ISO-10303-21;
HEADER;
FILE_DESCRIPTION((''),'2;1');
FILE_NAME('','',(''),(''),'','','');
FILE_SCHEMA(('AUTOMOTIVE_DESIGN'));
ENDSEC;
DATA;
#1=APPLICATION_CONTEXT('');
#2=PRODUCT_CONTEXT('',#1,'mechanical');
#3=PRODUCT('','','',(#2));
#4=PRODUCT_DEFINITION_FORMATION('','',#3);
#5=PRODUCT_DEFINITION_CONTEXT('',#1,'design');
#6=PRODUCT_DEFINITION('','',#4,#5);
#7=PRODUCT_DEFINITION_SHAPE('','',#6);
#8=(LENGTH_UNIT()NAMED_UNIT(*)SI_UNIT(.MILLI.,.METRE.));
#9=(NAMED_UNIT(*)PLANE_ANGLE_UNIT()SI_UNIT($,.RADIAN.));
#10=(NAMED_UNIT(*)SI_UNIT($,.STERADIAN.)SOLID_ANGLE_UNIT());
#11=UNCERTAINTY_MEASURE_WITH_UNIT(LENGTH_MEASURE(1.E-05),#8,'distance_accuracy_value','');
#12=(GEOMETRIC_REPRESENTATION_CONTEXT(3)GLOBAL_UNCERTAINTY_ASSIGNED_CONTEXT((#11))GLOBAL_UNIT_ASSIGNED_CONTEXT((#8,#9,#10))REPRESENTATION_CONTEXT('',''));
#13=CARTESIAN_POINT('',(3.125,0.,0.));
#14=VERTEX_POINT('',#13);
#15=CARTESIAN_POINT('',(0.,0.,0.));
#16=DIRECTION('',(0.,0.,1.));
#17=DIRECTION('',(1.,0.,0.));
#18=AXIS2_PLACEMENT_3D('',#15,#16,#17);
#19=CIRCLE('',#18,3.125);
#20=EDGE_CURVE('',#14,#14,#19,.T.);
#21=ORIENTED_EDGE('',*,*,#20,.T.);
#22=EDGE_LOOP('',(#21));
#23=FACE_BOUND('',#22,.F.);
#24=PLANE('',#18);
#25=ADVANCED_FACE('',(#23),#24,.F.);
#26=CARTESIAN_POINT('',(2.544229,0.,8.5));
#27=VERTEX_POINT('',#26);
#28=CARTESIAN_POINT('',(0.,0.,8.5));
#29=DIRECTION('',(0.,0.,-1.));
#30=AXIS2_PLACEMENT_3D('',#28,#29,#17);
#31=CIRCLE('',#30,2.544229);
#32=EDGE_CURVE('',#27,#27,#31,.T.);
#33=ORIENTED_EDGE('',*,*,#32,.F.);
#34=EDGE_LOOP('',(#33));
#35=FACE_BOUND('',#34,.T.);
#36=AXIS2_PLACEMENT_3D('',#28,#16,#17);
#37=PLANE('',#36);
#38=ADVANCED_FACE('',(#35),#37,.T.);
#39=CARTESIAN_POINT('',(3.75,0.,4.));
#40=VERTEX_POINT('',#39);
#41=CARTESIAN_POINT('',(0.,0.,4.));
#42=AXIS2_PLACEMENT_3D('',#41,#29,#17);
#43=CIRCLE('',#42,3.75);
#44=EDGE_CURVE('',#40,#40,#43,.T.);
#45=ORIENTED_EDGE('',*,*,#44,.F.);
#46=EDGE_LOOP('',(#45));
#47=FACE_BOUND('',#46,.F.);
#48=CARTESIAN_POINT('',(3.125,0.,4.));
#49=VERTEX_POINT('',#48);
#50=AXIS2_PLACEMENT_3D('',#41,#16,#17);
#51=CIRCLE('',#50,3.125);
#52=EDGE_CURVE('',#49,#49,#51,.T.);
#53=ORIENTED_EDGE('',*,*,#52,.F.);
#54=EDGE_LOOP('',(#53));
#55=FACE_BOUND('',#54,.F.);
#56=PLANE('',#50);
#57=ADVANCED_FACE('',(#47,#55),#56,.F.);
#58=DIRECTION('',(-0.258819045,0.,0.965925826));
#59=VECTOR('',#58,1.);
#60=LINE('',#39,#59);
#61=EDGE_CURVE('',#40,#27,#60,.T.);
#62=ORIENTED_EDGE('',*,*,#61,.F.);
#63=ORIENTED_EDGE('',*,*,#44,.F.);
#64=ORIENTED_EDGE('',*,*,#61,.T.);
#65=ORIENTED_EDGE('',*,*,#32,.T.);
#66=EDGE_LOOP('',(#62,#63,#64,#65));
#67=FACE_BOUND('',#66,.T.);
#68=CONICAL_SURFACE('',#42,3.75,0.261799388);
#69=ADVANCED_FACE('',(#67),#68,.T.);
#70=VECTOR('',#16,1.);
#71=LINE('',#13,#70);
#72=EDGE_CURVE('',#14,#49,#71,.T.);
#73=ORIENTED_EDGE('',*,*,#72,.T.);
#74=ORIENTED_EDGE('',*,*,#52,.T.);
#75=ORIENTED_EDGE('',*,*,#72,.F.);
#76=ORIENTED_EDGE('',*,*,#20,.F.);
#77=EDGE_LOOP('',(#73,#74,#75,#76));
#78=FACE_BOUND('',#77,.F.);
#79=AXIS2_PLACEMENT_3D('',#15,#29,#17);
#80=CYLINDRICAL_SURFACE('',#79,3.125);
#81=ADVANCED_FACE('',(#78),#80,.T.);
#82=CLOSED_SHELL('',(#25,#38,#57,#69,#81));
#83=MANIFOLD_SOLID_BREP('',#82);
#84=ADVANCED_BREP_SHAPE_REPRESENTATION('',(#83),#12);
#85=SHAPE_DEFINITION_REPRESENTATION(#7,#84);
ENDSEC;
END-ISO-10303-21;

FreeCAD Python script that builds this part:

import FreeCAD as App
import Part
import Sketcher

V = App.Vector
Q = App.Units.Quantity

doc = App.newDocument("Part")
body = doc.addObject("PartDesign::Body", "Body")

sketch1 = body.newObject("Sketcher::SketchObject", "Sketch")
sketch1.AttachmentSupport = (doc.getObject("XY_Plane"), [""])
sketch1.MapMode = "FlatFace"
sketch1.addGeometry(Part.Circle(V(0, 0, 0), V(0, 0, 1), 3.1), False)
sketch1.addConstraint([
    Sketcher.Constraint("Coincident", 0, 3, -1, 1),
    Sketcher.Constraint("Diameter", 0, Q("6.25 mm")),
])
pad1 = body.newObject("PartDesign::Pad", "Pad")
pad1.Profile = sketch1
pad1.Length = 4

sketch2 = body.newObject("Sketcher::SketchObject", "Sketch001")
sketch2.AttachmentSupport = (doc.getObject("XY_Plane"), [""])
sketch2.MapMode = "FlatFace"
sketch2.AttachmentOffset = App.Placement(V(0, 0, 4), App.Rotation())
sketch2.addGeometry(Part.Circle(V(0, 0, 0), V(0, 0, 1), 3.8), False)
sketch2.addConstraint([
    Sketcher.Constraint("Coincident", 0, 3, -1, 1),
    Sketcher.Constraint("Diameter", 0, Q("7.5 mm")),
])
pad2 = body.newObject("PartDesign::Pad", "Pad001")
pad2.Profile = sketch2
pad2.Length = 4.5
pad2.TaperAngle = -15

doc.recompute()
